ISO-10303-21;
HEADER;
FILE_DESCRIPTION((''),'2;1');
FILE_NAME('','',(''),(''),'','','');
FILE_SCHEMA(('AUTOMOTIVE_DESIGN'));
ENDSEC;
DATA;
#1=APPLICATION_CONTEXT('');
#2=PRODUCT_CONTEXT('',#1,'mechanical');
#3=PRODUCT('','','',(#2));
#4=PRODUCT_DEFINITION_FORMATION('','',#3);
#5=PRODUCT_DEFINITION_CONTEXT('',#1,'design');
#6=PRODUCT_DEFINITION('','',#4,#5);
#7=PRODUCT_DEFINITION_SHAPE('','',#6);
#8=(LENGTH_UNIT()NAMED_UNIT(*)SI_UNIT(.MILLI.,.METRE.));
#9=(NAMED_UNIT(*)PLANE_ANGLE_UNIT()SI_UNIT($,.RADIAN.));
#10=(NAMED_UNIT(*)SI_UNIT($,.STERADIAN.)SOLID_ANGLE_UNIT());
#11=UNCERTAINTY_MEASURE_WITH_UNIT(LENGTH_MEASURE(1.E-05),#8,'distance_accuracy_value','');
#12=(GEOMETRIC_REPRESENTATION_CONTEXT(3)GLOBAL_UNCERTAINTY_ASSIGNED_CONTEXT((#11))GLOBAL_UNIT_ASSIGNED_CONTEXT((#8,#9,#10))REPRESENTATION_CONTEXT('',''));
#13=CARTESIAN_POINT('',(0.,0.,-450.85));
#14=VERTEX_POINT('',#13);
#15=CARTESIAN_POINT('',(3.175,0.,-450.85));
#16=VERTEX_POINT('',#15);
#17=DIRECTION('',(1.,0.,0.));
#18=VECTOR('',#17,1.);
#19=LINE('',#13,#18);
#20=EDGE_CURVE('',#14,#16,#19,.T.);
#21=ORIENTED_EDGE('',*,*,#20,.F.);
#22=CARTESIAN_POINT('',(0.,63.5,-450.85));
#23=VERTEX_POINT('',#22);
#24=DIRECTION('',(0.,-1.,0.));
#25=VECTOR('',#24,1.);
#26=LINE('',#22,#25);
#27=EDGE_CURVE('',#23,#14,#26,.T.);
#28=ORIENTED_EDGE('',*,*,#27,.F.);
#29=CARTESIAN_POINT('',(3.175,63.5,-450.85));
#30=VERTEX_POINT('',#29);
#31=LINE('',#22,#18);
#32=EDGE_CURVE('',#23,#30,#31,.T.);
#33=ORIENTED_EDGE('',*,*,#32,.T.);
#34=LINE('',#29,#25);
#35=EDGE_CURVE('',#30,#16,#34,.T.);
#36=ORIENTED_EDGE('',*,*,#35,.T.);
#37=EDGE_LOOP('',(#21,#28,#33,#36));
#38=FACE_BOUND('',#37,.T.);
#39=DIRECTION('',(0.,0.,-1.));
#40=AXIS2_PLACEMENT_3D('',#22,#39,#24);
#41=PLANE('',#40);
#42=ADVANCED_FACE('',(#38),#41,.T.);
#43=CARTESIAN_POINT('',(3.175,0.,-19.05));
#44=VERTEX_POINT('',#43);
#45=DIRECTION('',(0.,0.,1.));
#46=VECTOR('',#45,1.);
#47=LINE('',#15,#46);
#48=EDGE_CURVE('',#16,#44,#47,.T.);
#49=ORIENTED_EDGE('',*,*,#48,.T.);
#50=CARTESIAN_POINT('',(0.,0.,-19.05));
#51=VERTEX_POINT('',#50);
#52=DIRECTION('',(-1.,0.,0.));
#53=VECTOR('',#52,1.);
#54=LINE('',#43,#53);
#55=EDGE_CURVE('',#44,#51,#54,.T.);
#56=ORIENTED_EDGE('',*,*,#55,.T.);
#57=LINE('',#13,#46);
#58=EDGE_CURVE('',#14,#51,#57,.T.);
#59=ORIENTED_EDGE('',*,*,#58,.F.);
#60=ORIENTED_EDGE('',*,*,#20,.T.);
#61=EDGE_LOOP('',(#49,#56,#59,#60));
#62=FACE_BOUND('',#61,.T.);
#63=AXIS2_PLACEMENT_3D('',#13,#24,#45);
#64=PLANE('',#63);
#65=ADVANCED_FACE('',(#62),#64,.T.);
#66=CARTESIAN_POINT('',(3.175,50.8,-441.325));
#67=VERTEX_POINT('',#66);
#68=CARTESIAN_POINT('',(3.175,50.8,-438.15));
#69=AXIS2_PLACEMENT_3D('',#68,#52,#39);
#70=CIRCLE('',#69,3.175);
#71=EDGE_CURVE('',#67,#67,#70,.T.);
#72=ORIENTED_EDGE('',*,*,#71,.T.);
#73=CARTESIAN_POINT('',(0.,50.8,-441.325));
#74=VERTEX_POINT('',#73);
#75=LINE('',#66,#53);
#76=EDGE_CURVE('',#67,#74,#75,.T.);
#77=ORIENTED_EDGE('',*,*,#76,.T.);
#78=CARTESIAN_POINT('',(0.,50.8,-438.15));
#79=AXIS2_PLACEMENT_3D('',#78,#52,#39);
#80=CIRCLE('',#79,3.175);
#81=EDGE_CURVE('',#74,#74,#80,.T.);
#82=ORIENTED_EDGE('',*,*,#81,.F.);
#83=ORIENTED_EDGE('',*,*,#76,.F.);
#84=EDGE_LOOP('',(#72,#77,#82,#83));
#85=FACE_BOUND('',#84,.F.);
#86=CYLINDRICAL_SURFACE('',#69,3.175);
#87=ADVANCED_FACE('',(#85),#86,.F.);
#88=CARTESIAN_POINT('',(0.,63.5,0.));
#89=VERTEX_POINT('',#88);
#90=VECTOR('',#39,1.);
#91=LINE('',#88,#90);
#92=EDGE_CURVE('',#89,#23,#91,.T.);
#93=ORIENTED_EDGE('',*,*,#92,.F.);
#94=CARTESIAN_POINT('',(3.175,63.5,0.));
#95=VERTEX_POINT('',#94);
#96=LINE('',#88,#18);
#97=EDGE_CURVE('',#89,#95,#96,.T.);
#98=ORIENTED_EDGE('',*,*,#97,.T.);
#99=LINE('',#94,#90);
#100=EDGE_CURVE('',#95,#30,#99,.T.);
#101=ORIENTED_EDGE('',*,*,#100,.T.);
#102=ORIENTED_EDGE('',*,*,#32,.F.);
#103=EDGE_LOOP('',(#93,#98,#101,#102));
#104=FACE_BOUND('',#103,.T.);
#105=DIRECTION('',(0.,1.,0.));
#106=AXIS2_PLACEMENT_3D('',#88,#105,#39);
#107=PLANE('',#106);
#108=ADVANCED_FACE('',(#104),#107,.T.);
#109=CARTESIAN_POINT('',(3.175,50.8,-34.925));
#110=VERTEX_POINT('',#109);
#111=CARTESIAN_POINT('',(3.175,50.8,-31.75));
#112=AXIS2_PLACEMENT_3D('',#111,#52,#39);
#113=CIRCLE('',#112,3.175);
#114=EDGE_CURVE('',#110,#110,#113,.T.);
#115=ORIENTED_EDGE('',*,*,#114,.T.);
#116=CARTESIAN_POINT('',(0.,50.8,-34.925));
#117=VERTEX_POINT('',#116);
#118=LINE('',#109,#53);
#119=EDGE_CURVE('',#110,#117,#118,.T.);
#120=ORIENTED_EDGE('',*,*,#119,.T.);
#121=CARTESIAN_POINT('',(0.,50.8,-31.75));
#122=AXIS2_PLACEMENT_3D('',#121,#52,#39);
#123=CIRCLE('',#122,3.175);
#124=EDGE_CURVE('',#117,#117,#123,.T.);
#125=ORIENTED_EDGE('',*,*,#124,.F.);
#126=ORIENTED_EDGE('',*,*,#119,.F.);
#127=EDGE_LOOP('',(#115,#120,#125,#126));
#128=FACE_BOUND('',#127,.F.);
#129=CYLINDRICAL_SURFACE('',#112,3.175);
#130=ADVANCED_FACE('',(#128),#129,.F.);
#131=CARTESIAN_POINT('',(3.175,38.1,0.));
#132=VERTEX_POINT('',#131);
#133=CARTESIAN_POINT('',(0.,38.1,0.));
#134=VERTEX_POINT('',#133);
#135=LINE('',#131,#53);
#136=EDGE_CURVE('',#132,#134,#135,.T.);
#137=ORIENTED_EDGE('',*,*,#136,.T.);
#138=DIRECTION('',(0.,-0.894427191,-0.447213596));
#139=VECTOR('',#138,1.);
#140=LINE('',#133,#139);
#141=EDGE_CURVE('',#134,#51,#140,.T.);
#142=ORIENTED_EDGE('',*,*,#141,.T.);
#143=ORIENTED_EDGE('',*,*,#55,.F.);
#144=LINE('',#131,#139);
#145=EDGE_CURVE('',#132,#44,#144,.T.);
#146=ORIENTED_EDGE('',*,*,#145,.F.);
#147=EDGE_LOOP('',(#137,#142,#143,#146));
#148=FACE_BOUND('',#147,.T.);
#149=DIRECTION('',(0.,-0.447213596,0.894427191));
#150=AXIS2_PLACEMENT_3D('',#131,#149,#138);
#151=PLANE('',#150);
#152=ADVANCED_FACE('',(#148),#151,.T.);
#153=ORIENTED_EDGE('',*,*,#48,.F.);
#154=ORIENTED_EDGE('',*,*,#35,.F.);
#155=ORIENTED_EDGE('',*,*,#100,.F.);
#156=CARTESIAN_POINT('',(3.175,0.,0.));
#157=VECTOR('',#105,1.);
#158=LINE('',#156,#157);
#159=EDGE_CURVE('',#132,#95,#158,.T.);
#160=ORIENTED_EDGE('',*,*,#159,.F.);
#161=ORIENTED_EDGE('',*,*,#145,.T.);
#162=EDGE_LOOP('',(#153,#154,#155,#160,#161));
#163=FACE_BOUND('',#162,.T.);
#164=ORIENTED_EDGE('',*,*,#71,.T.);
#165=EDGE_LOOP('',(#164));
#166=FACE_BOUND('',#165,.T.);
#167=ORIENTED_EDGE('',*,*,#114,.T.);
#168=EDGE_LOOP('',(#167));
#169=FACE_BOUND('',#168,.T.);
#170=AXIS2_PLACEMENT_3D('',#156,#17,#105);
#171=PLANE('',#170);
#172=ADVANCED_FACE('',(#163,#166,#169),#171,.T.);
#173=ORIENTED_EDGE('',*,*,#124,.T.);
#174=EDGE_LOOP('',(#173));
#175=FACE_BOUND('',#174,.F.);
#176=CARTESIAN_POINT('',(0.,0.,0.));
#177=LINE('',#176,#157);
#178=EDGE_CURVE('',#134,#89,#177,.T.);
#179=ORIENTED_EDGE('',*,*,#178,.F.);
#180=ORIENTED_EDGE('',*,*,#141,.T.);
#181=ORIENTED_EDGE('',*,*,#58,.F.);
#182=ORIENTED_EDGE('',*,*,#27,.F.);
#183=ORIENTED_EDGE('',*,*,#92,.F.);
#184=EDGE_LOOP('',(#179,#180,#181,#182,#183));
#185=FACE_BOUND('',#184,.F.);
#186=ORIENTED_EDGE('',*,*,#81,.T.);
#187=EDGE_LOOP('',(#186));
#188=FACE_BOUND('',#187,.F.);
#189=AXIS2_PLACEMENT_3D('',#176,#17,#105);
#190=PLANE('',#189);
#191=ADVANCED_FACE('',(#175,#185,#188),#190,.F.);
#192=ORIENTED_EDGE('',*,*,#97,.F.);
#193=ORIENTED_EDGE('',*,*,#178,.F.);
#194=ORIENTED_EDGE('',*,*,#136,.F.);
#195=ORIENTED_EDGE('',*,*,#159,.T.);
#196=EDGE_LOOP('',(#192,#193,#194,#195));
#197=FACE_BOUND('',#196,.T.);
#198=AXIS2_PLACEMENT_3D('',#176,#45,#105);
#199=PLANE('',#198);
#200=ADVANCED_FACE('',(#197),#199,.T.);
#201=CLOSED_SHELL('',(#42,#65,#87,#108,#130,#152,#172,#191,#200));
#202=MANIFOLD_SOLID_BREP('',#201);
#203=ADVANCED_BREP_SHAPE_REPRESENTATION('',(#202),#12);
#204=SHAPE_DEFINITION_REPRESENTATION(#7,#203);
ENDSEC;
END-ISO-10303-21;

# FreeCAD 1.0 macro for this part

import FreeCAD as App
import Part
import Sketcher

V = App.Vector
Q = App.Units.Quantity

doc = App.newDocument("Part")
body = doc.addObject("PartDesign::Body", "Body")

# Sketch on YZ plane
sketch1 = body.newObject("Sketcher::SketchObject", "Sketch")
sketch1.AttachmentSupport = (doc.getObject("YZ_Plane"), [""])
sketch1.MapMode = "FlatFace"
sketch1.addGeometry([
    Part.LineSegment(V(64, 0, 0), V(0, 0, 0)),
    Part.LineSegment(V(0, 0, 0), V(0, -451, 0)),
    Part.LineSegment(V(0, -451, 0), V(64, -451, 0)),
    Part.LineSegment(V(64, -451, 0), V(64, 0, 0)),
], False)
sketch1.addConstraint([
    Sketcher.Constraint("Coincident", 0, 2, 1, 1),
    Sketcher.Constraint("Coincident", 1, 2, 2, 1),
    Sketcher.Constraint("Coincident", 2, 2, 3, 1),
    Sketcher.Constraint("Coincident", 3, 2, 0, 1),
    Sketcher.Constraint("Horizontal", 0),
    Sketcher.Constraint("Vertical", 1),
    Sketcher.Constraint("Horizontal", 2),
    Sketcher.Constraint("Vertical", 3),
    Sketcher.Constraint("Coincident", 0, 2, -1, 1),
    Sketcher.Constraint("DistanceX", 0, 2, 0, 1, Q("2.5 in")),
    Sketcher.Constraint("DistanceY", 1, 2, 1, 1, Q("17.75 in")),
])
pad1 = body.newObject("PartDesign::Pad", "Pad")
pad1.Profile = sketch1
pad1.Length = Q("0.125 in")

# Sketch on YZ plane
sketch2 = body.newObject("Sketcher::SketchObject", "Sketch001")
sketch2.AttachmentSupport = (doc.getObject("YZ_Plane"), [""])
sketch2.MapMode = "FlatFace"
sketch2.AttachmentOffset = App.Placement(V(0, 0, 0.125 * 25.4), App.Rotation())
sketch2.addGeometry([
    Part.Circle(V(50.8, -31.8, 0), V(0, 0, 1), 3.2),
    Part.Circle(V(50.8, -438.1, 0), V(0, 0, 1), 3.2),
], False)
sketch2.addConstraint([
    Sketcher.Constraint("Equal", 0, 1),
    Sketcher.Constraint("Vertical", 0, 3, 1, 3),
    Sketcher.Constraint("Diameter", 0, Q("0.25 in")),
    Sketcher.Constraint("DistanceX", -1, 1, 0, 3, Q("2 in")),
    Sketcher.Constraint("DistanceY", 1, 3, 0, 3, Q("16 in")),
    Sketcher.Constraint("DistanceY", 0, 3, -1, 1, Q("1.25 in")),
])
doc.recompute()
hole = body.newObject("PartDesign::Hole", "Hole")
hole.Profile = sketch2
hole.ThreadType = "None"
hole.Diameter = Q("0.25 in")
hole.DepthType = "ThroughAll"

# Sketch on YZ plane
sketch3 = body.newObject("Sketcher::SketchObject", "Sketch002")
sketch3.AttachmentSupport = (doc.getObject("YZ_Plane"), [""])
sketch3.MapMode = "FlatFace"
sketch3.AttachmentOffset = App.Placement(V(0, 0, 0.125 * 25.4), App.Rotation())
sketch3.addGeometry([
    Part.LineSegment(V(0, -19, 0), V(38, 0, 0)),
    Part.LineSegment(V(38, 0, 0), V(0, 0, 0)),
    Part.LineSegment(V(0, 0, 0), V(0, -19, 0)),
], False)
sketch3.addConstraint([
    Sketcher.Constraint("Coincident", 0, 2, 1, 1),
    Sketcher.Constraint("Coincident", 1, 2, 2, 1),
    Sketcher.Constraint("Coincident", 2, 2, 0, 1),
    Sketcher.Constraint("Horizontal", 1),
    Sketcher.Constraint("Vertical", 2),
    Sketcher.Constraint("Coincident", 1, 2, -1, 1),
    Sketcher.Constraint("DistanceX", 1, 2, 1, 1, Q("1.5 in")),
    Sketcher.Constraint("DistanceY", 2, 2, 2, 1, Q("0.75 in")),
])
pocket1 = body.newObject("PartDesign::Pocket", "Pocket")
pocket1.Profile = sketch3
pocket1.Length = Q("0.125 in")

doc.recompute()
